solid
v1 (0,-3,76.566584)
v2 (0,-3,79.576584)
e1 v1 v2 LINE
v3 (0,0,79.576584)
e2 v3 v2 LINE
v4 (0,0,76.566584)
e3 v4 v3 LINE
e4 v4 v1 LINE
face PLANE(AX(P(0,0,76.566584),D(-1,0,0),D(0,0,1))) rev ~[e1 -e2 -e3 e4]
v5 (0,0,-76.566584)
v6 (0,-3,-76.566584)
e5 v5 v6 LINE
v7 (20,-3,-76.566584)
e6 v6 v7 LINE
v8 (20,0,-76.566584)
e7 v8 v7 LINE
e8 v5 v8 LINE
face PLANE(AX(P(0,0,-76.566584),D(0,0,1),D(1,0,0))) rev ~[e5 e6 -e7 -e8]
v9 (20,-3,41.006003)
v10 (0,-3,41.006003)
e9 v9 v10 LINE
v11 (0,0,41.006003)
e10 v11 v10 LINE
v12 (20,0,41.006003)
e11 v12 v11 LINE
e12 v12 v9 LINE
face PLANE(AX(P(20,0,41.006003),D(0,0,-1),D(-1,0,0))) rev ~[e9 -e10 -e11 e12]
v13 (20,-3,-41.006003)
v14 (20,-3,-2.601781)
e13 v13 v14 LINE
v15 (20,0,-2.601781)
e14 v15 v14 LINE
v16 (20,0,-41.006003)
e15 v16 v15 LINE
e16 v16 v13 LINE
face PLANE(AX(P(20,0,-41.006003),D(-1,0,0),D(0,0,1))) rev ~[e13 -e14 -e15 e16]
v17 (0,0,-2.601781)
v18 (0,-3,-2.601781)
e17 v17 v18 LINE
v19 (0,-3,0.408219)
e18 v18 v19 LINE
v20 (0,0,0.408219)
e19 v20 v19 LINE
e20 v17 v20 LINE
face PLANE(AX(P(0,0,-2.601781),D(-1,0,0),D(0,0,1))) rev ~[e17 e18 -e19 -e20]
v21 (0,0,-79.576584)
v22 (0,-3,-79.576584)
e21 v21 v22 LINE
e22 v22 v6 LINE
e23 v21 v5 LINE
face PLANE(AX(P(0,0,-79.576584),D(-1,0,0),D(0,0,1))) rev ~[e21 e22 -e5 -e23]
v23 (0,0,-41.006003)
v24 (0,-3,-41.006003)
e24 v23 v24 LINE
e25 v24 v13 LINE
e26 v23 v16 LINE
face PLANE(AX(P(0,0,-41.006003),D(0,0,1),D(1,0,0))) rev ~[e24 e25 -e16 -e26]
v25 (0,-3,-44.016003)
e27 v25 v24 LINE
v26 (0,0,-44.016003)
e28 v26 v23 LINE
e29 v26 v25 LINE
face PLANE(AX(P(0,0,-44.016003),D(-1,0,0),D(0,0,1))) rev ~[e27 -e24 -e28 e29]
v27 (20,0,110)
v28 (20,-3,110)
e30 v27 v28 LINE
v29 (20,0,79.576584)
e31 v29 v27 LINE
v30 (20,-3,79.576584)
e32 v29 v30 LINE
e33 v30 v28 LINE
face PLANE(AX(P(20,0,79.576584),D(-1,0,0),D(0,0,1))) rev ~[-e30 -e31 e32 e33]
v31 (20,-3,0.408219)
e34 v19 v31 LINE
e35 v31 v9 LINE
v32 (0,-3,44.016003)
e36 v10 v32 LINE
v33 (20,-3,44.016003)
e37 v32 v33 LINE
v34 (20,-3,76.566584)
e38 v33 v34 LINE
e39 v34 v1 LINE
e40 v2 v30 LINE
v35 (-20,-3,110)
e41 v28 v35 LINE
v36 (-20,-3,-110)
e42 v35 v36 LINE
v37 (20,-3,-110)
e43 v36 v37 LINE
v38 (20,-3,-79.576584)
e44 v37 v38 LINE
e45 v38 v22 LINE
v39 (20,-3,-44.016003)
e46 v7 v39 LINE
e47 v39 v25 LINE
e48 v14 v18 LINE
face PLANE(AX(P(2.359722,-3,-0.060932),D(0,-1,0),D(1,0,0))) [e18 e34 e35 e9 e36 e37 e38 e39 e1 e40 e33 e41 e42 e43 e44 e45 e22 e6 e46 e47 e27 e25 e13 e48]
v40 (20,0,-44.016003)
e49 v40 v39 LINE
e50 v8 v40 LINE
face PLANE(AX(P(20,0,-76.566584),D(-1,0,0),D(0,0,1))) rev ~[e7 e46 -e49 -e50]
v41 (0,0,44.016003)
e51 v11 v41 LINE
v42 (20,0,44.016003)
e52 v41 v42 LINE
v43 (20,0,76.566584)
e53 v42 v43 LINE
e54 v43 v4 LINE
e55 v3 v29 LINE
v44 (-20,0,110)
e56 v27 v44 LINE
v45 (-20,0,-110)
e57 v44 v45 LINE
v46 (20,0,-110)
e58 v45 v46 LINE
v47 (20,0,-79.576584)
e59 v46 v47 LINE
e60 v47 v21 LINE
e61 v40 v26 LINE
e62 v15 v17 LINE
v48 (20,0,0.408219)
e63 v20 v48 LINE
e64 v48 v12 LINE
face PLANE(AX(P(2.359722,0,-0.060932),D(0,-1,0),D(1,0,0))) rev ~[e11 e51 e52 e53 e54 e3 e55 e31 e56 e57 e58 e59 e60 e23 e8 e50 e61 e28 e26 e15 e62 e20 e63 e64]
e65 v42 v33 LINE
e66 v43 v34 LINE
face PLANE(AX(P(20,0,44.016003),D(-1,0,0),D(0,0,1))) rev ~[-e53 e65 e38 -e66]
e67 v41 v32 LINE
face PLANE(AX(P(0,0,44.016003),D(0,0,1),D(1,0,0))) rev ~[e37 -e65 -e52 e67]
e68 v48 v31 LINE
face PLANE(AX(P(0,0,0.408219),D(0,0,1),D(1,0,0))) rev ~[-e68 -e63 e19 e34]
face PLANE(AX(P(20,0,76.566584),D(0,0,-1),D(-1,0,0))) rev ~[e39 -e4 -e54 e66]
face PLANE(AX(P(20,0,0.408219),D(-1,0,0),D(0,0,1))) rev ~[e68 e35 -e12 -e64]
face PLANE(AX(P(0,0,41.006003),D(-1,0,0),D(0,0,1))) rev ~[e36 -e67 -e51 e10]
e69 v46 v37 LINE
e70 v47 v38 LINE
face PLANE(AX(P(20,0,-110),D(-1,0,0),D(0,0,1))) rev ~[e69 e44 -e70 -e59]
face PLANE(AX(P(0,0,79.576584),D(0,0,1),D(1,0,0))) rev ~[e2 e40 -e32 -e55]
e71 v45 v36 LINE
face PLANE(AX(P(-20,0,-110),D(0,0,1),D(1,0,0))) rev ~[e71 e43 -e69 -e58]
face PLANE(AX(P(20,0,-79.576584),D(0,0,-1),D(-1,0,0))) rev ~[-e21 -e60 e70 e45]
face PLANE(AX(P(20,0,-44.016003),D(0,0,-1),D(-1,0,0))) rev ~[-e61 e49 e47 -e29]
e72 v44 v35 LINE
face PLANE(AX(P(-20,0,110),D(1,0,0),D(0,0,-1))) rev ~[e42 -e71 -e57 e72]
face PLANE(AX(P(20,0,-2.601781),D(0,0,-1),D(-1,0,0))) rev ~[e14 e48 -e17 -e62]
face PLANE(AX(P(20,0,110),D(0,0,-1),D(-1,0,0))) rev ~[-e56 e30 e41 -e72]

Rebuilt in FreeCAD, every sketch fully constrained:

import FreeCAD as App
import Part
import Sketcher
from FreeCAD import Vector


def add_polygon(sketch, points):
    """Adds a closed chain of lines whose ends are joined by coincident constraints."""
    first, n = sketch.GeometryCount, len(points)
    for a, b in zip(points, points[1:] + points[:1]):
        sketch.addGeometry(Part.LineSegment(App.Vector(*a, 0), App.Vector(*b, 0)), False)
    for i in range(n):
        sketch.addConstraint(Sketcher.Constraint("Coincident", first + i, 2, first + (i + 1) % n, 1))

doc = App.newDocument("Part")
params = doc.addObject("Spreadsheet::Sheet", "Params")
for row, (alias, value) in enumerate([
    ("sketch1_width", "40 mm"),
    ("sketch1_height", "220 mm"),
    ("sketch1_height2", "3.01 mm"),
    ("pad1_length", "3 mm"),
], start=1):
    params.set(f"A{row}", alias)
    params.set(f"B{row}", "=" + value)
    params.setAlias(f"B{row}", alias)

body = doc.addObject("PartDesign::Body", "Body")

sketch1 = doc.addObject("Sketcher::SketchObject", "Sketch")
body.addObject(sketch1)
sketch1.AttachmentSupport = (doc.XZ_Plane, [""])
sketch1.MapMode = "FlatFace"
add_polygon(sketch1, [(20, 110), (-20, 110), (-20, -110), (20, -110), (20, -79.6), (0, -79.6), (0, -76.6), (20, -76.6), (20, -44), (0, -44), (0, -41), (20, -41), (20, -2.6), (0, -2.6), (0, 0.4), (20, 0.4), (20, 41), (0, 41), (0, 44), (20, 44), (20, 76.6), (0, 76.6), (0, 79.6), (20, 79.6)])
sketch1.addConstraint([
    Sketcher.Constraint("Horizontal", 0),
    Sketcher.Constraint("Vertical", 1),
    Sketcher.Constraint("Horizontal", 2),
    Sketcher.Constraint("Vertical", 3),
    Sketcher.Constraint("Horizontal", 4),
    Sketcher.Constraint("Vertical", 5),
    Sketcher.Constraint("Horizontal", 6),
    Sketcher.Constraint("Vertical", 7),
    Sketcher.Constraint("Horizontal", 8),
    Sketcher.Constraint("Vertical", 9),
    Sketcher.Constraint("Horizontal", 10),
    Sketcher.Constraint("Vertical", 11),
    Sketcher.Constraint("Horizontal", 12),
    Sketcher.Constraint("Vertical", 13),
    Sketcher.Constraint("Horizontal", 14),
    Sketcher.Constraint("Vertical", 15),
    Sketcher.Constraint("Horizontal", 16),
    Sketcher.Constraint("Vertical", 17),
    Sketcher.Constraint("Horizontal", 18),
    Sketcher.Constraint("Vertical", 19),
    Sketcher.Constraint("Horizontal", 20),
    Sketcher.Constraint("Vertical", 21),
    Sketcher.Constraint("Horizontal", 22),
    Sketcher.Constraint("Vertical", 23),
    Sketcher.Constraint("Symmetric", 0, 2, 2, 2, -1, 1),
    Sketcher.Constraint("Symmetric", 9, 2, 16, 2, -1, 1),
    Sketcher.Constraint("Symmetric", 5, 2, 20, 2, -1, 1),
    Sketcher.Constraint("Symmetric", 8, 2, 17, 2, -1),
    Sketcher.Constraint("Symmetric", 4, 2, 21, 2, -1),
    Sketcher.Constraint("PointOnObject", 12, 2, -2),
    Sketcher.Constraint("Vertical", 3, 2, 6, 2),
    Sketcher.Constraint("Vertical", 7, 2, 10, 2),
    Sketcher.Constraint("Vertical", 11, 2, 14, 2),
    Sketcher.Constraint("Vertical", 15, 2, 18, 2),
    Sketcher.Constraint("Vertical", 19, 2, 22, 2),
    Sketcher.Constraint("Equal", 5, 9),
    Sketcher.Constraint("Equal", 9, 13),
    Sketcher.Constraint("DistanceX", 0, 2, 0, 1, 40.0),
    Sketcher.Constraint("DistanceY", 1, 2, 1, 1, 220.0),
    Sketcher.Constraint("DistanceY", 5, 1, 5, 2, 3.01),
    Sketcher.Constraint("DistanceY", 7, 1, 7, 2, 32.550581),
    Sketcher.Constraint("DistanceY", 11, 1, 11, 2, 38.404222),
    Sketcher.Constraint("DistanceY", 3, 1, 3, 2, 30.423416),
])
sketch1.setExpression("Constraints[61]", "Params.sketch1_width")
sketch1.setExpression("Constraints[62]", "Params.sketch1_height")
sketch1.setExpression("Constraints[63]", "Params.sketch1_height2")
pad1 = doc.addObject("PartDesign::Pad", "Pad")
body.addObject(pad1)
pad1.Profile = sketch1
pad1.setExpression("Length", "Params.pad1_length")

doc.recompute()
